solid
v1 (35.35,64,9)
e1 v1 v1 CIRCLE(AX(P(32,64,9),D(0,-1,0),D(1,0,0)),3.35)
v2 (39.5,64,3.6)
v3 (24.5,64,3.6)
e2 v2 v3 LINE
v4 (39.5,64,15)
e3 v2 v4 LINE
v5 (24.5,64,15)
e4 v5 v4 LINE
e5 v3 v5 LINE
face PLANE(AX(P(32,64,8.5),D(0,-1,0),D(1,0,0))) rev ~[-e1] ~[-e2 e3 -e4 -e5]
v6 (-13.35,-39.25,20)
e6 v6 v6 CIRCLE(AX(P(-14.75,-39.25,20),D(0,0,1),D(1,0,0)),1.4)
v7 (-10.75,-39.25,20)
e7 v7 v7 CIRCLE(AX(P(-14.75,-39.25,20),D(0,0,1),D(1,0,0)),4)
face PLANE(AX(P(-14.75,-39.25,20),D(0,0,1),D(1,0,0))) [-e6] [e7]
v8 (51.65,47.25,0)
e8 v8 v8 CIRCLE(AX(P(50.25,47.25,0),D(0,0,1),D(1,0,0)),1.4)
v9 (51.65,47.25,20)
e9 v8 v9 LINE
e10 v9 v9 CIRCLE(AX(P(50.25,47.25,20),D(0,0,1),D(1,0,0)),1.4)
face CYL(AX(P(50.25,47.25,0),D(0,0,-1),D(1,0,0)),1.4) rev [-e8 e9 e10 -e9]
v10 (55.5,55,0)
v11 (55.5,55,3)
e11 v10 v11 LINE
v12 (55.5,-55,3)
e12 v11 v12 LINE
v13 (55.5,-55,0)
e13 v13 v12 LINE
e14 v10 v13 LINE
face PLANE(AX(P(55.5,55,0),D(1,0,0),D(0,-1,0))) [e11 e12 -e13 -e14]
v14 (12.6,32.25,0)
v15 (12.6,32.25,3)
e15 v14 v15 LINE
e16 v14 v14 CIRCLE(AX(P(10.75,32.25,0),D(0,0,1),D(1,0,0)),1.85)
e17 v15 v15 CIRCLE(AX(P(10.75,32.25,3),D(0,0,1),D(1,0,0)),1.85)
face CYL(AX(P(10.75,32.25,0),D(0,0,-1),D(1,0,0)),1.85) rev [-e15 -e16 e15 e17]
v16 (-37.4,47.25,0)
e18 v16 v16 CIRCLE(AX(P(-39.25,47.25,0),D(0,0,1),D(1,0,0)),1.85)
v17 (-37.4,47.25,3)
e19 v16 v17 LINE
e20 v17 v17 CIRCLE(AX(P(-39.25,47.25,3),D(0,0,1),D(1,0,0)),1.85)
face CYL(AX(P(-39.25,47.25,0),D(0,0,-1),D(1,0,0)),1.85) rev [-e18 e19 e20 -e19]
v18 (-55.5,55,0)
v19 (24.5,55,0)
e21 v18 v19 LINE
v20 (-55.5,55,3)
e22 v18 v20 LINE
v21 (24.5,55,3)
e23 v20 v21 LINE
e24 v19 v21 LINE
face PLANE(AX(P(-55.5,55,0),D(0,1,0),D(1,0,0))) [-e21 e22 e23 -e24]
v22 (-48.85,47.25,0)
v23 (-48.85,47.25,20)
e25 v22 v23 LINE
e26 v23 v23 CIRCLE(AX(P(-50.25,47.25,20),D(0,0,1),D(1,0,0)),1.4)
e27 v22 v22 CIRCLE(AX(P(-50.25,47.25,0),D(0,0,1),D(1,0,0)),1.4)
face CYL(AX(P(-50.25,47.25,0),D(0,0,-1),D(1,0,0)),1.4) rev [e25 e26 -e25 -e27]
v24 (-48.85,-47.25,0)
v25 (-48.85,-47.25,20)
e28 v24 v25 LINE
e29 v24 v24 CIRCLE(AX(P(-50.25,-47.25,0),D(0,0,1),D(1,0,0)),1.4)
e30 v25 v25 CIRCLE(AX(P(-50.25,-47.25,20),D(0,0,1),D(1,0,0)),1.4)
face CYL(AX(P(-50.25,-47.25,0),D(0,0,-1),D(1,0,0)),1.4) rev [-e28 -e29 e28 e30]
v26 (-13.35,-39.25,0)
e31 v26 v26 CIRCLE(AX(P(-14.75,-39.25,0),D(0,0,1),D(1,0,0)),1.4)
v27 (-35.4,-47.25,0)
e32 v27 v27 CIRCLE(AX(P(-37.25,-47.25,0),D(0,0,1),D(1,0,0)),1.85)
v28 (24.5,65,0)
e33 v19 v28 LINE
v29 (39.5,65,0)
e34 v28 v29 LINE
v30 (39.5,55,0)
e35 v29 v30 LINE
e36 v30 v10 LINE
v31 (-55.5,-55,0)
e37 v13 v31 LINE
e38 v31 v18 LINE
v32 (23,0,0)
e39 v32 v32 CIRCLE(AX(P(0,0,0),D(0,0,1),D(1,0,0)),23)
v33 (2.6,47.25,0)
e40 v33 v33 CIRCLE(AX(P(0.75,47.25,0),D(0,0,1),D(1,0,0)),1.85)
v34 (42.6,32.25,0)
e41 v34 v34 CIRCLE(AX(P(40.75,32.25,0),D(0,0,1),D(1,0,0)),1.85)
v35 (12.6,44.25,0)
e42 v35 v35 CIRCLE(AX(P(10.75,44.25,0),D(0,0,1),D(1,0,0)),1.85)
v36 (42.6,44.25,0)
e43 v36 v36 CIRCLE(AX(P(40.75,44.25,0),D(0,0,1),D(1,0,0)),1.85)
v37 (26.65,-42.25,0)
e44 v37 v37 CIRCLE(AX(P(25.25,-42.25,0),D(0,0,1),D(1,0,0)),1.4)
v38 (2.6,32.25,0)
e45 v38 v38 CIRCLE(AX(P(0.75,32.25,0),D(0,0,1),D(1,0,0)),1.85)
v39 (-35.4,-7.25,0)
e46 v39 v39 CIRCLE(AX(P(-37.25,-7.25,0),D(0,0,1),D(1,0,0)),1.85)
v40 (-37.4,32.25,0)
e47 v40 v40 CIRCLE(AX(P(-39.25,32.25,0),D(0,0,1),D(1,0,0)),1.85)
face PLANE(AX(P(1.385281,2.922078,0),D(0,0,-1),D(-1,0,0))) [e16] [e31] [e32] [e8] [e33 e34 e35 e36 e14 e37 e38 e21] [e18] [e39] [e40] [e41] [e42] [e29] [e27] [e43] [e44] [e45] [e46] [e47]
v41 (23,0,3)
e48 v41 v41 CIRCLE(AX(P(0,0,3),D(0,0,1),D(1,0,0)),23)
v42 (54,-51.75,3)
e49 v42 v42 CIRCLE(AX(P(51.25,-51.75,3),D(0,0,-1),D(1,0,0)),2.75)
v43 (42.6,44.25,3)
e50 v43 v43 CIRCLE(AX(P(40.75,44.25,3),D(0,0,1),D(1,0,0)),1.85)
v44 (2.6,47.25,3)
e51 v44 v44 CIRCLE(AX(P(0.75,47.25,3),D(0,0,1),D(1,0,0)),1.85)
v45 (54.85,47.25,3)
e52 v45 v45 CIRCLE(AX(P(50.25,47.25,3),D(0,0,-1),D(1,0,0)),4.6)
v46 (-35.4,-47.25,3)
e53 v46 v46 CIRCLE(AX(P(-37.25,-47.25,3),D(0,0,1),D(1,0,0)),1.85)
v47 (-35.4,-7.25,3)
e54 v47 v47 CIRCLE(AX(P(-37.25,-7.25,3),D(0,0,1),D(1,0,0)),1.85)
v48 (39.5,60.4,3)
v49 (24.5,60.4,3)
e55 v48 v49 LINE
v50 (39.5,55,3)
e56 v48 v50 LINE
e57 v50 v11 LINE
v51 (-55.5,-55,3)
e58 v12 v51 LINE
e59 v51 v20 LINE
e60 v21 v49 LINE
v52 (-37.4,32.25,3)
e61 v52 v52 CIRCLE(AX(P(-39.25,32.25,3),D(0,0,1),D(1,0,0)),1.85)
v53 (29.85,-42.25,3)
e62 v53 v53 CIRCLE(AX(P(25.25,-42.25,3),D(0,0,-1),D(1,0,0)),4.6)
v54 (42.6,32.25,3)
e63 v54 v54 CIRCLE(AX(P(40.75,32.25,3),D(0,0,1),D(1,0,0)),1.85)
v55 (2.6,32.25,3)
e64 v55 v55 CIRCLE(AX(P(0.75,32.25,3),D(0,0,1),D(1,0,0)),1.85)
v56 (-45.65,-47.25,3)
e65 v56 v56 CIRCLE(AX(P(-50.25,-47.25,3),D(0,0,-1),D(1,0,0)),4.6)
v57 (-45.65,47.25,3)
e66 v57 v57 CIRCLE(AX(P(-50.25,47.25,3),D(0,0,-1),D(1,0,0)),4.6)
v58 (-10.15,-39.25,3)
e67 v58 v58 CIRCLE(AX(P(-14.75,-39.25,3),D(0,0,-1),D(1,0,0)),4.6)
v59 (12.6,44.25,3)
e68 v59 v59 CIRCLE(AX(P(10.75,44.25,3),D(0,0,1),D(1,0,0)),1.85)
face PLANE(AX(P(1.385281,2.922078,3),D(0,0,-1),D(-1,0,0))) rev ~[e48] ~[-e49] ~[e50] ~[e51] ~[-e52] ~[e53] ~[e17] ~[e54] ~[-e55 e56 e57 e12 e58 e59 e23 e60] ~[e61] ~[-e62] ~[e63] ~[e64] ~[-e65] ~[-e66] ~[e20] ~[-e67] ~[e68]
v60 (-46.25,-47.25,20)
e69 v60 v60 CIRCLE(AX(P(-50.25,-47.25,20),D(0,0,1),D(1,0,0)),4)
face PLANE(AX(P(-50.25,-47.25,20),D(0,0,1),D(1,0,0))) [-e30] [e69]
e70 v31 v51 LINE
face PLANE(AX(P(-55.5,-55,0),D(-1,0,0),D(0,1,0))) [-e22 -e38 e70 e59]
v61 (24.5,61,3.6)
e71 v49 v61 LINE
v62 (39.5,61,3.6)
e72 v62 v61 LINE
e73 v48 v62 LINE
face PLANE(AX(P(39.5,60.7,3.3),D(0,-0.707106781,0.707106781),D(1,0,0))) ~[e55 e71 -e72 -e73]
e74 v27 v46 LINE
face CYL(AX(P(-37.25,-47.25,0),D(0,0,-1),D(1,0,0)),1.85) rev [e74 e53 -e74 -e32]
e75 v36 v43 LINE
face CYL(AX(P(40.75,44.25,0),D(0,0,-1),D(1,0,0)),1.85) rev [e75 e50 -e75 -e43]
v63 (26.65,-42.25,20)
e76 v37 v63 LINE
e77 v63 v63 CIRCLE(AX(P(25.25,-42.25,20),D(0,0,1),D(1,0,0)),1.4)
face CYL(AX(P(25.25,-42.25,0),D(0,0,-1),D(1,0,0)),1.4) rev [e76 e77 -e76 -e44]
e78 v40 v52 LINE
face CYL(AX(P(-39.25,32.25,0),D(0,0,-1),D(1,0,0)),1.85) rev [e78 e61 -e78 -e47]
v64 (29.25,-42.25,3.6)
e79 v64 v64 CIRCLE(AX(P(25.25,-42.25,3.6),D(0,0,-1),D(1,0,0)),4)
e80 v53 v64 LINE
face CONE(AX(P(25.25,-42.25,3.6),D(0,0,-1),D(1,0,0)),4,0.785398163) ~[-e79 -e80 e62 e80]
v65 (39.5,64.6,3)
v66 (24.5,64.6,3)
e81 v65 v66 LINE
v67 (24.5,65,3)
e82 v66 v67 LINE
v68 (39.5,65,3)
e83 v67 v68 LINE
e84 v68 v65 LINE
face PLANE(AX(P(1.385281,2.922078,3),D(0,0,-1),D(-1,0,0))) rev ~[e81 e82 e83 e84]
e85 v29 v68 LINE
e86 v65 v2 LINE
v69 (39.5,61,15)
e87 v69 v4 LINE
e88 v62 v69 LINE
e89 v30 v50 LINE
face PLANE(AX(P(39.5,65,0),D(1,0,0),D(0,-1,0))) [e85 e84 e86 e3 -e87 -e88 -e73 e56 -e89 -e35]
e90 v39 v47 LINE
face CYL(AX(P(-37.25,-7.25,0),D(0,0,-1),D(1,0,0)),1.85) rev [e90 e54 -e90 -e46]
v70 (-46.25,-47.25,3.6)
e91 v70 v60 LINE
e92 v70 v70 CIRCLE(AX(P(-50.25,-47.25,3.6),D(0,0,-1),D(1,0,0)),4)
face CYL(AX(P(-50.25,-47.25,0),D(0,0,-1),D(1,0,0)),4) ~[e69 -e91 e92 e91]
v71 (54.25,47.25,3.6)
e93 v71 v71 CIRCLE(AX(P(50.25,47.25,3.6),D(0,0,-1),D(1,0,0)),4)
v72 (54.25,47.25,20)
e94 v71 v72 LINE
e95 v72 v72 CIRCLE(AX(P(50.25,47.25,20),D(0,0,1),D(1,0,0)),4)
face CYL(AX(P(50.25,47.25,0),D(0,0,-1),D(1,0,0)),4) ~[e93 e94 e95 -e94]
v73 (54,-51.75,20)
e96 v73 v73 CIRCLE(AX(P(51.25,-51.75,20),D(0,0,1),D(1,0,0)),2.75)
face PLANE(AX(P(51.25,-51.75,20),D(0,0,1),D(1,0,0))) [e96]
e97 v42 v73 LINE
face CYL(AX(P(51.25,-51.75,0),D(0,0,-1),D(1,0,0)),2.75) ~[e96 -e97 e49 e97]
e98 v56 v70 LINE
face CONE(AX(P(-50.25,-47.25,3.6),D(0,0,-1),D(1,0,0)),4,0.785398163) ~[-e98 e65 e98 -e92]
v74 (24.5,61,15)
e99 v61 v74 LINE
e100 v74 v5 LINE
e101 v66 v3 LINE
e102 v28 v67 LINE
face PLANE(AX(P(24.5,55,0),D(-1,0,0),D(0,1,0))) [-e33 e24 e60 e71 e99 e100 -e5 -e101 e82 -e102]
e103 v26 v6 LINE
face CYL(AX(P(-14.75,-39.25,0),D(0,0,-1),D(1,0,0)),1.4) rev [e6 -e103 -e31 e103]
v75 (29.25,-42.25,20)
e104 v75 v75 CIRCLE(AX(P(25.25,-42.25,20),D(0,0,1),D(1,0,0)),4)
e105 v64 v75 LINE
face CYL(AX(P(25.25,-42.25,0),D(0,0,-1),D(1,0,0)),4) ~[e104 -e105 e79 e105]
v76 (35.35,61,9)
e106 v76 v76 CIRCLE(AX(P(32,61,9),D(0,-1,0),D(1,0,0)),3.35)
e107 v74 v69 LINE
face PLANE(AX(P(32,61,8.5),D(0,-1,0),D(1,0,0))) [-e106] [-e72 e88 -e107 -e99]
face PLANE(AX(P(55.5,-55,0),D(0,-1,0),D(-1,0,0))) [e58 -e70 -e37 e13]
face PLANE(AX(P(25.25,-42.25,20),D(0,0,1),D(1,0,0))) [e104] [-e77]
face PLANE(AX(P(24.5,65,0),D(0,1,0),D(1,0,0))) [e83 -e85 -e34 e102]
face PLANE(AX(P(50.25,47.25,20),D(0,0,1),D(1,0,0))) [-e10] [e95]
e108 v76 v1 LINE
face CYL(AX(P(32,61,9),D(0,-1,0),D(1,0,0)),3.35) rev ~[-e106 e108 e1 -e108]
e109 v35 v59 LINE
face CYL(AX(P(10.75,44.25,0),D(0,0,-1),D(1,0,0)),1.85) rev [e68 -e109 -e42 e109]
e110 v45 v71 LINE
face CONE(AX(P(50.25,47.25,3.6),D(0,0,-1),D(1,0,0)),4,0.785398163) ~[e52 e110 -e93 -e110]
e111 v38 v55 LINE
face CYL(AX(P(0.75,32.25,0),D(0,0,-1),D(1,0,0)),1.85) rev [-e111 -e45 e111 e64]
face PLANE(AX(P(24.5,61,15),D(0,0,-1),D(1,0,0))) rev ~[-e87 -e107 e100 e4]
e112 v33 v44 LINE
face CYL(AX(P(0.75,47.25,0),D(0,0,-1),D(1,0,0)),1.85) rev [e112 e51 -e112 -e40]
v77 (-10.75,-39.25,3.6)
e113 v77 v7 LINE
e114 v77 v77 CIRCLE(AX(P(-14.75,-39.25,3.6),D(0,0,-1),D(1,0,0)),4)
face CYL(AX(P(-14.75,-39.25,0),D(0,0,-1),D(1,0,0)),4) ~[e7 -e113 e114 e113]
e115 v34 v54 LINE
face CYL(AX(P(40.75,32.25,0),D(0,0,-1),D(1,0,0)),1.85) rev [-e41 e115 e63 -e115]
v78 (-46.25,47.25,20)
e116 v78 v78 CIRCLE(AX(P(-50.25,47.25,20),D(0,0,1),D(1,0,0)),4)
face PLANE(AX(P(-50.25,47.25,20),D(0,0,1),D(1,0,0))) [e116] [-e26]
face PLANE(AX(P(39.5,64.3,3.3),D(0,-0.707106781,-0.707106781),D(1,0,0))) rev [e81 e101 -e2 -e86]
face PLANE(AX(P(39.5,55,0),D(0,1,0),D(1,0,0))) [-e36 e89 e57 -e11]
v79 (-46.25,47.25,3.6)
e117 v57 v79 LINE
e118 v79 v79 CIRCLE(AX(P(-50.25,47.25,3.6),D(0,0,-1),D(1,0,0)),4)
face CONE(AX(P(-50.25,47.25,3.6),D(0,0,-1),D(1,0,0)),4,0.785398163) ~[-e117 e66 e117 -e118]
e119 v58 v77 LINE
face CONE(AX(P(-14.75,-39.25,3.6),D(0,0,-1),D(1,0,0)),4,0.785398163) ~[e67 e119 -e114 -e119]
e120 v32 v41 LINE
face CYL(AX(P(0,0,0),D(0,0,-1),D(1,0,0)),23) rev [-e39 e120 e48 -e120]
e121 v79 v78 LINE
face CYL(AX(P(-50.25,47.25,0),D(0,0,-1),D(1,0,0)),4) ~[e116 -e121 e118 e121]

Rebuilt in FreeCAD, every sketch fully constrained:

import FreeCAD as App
import Part
import Sketcher

V = App.Vector
Q = App.Units.Quantity


def edges_at(feature, points):
    """Names of the edges that pass closest to the given points."""
    edges = feature.Shape.Edges
    near = lambda p: min(range(len(edges)), key=lambda i: edges[i].distToShape(Part.Vertex(*p))[0])
    return sorted({f"Edge{near(p) + 1}" for p in points})

doc = App.newDocument("Part")
body = doc.addObject("PartDesign::Body", "Body")
body.AllowCompound = True

# Sketch on XY plane
sketch1 = body.newObject("Sketcher::SketchObject", "Sketch")
sketch1.AttachmentSupport = (doc.getObject("XY_Plane"), [""])
sketch1.MapMode = "FlatFace"
sketch1.addGeometry([
    Part.Circle(V(-50.25, -47.25, 0), V(0, 0, 1), 4),  # 0
    Part.Circle(V(-50.25, -47.25, 0), V(0, 0, 1), 1.4),  # 1
    Part.Circle(V(50.25, 47.25, 0), V(0, 0, 1), 4),  # 2
    Part.Circle(V(50.25, 47.25, 0), V(0, 0, 1), 1.4),  # 3
    Part.Circle(V(-50.25, 47.25, 0), V(0, 0, 1), 4),  # 4
    Part.Circle(V(-50.25, 47.25, 0), V(0, 0, 1), 1.4),  # 5
    Part.Circle(V(25.25, -42.25, 0), V(0, 0, 1), 4),  # 6
    Part.Circle(V(25.25, -42.25, 0), V(0, 0, 1), 1.4),  # 7
    Part.Circle(V(51.25, -51.75, 0), V(0, 0, 1), 2.75),  # 8
    Part.Circle(V(-14.75, -39.25, 0), V(0, 0, 1), 4),  # 9
    Part.Circle(V(-14.75, -39.25, 0), V(0, 0, 1), 1.4),  # 10
], False)
sketch1.addConstraint([
    Sketcher.Constraint("Coincident", 1, 3, 0, 3),
    Sketcher.Constraint("Coincident", 3, 3, 2, 3),
    Sketcher.Constraint("Coincident", 5, 3, 4, 3),
    Sketcher.Constraint("Coincident", 7, 3, 6, 3),
    Sketcher.Constraint("Coincident", 10, 3, 9, 3),
    Sketcher.Constraint("Equal", 0, 2),
    Sketcher.Constraint("Equal", 1, 3),
    Sketcher.Constraint("Equal", 2, 4),
    Sketcher.Constraint("Equal", 3, 5),
    Sketcher.Constraint("Equal", 4, 6),
    Sketcher.Constraint("Equal", 5, 7),
    Sketcher.Constraint("Equal", 6, 9),
    Sketcher.Constraint("Equal", 7, 10),
    Sketcher.Constraint("Symmetric", 0, 3, 2, 3, -1, 1),
    Sketcher.Constraint("Symmetric", 2, 3, 4, 3, -2),
    Sketcher.Constraint("Diameter", 0, Q("8 mm")),
    Sketcher.Constraint("Diameter", 1, Q("2.8 mm")),
    Sketcher.Constraint("Diameter", 8, Q("5.5 mm")),
    Sketcher.Constraint("DistanceY", 0, 3, 6, 3, Q("5 mm")),
    Sketcher.Constraint("DistanceX", 6, 3, 2, 3, Q("25 mm")),
    Sketcher.Constraint("DistanceX", 6, 3, 8, 3, Q("26 mm")),
    Sketcher.Constraint("DistanceY", 8, 3, 2, 3, Q("99 mm")),
    Sketcher.Constraint("DistanceY", 0, 3, 9, 3, Q("8 mm")),
    Sketcher.Constraint("DistanceX", 9, 3, 6, 3, Q("40 mm")),
    Sketcher.Constraint("DistanceX", 0, 3, 2, 3, Q("100.5 mm")),
    Sketcher.Constraint("DistanceY", 0, 3, 2, 3, Q("94.5 mm")),
])
pad1 = body.newObject("PartDesign::Pad", "Pad")
pad1.Profile = sketch1
pad1.Length = 20
body2 = doc.addObject("PartDesign::Body", "Body001")

# Sketch on XY plane
sketch2 = body2.newObject("Sketcher::SketchObject", "Sketch001")
sketch2.AttachmentSupport = (doc.getObject("XY_Plane001"), [""])
sketch2.MapMode = "FlatFace"
sketch2.addGeometry([
    Part.LineSegment(V(-7.5, 13, 0), V(-7.5, 0, 0)),  # 0
    Part.LineSegment(V(-7.5, 0, 0), V(7.5, 0, 0)),  # 1
    Part.LineSegment(V(7.5, 0, 0), V(7.5, 13, 0)),  # 2
    Part.LineSegment(V(7.5, 13, 0), V(-7.5, 13, 0)),  # 3
    Part.Circle(V(0, 7, 0), V(0, 0, 1), 3.35),  # 4
], False)
sketch2.addConstraint([
    Sketcher.Constraint("Coincident", 0, 2, 1, 1),
    Sketcher.Constraint("Coincident", 1, 2, 2, 1),
    Sketcher.Constraint("Coincident", 2, 2, 3, 1),
    Sketcher.Constraint("Coincident", 3, 2, 0, 1),
    Sketcher.Constraint("Vertical", 0),
    Sketcher.Constraint("Horizontal", 1),
    Sketcher.Constraint("Vertical", 2),
    Sketcher.Constraint("Horizontal", 3),
    Sketcher.Constraint("Symmetric", 0, 2, 1, 2, -1, 1),
    Sketcher.Constraint("PointOnObject", 4, 3, -2),
    Sketcher.Constraint("Diameter", 4, Q("6.7 mm")),
    Sketcher.Constraint("DistanceX", 1, 1, 1, 2, Q("15 mm")),
    Sketcher.Constraint("DistanceY", 0, 2, 0, 1, Q("13 mm")),
    Sketcher.Constraint("DistanceY", -1, 1, 4, 3, Q("7 mm")),
])
pad2 = body2.newObject("PartDesign::Pad", "Pad001")
pad2.Profile = sketch2
pad2.Length = 3
pad2.Reversed = True
body3 = doc.addObject("PartDesign::Body", "Body002")
doc.recompute()

body2.Placement = App.Placement(V(0, 0, 0), App.Rotation(V(1, 0, 0), 90))
boolean = body3.newObject("PartDesign::Boolean", "Boolean")
boolean.Type = "Fuse"
boolean.addObjects([body2])
body4 = doc.addObject("PartDesign::Body", "Body003")
doc.recompute()

body3.Placement = App.Placement(V(32, 61, 2), App.Rotation(V(0, 0, 1), 0))
boolean2 = body4.newObject("PartDesign::Boolean", "Boolean001")
boolean2.Type = "Fuse"
boolean2.addObjects([body3])
body5 = doc.addObject("PartDesign::Body", "Body004")

# Sketch on XY plane
sketch3 = body5.newObject("Sketcher::SketchObject", "Sketch002")
sketch3.AttachmentSupport = (doc.getObject("XY_Plane004"), [""])
sketch3.MapMode = "FlatFace"
sketch3.addGeometry([
    Part.LineSegment(V(55.5, -55, 0), V(55.5, 55, 0)),  # 0
    Part.LineSegment(V(55.5, 55, 0), V(39.5, 55, 0)),  # 1
    Part.LineSegment(V(39.5, 55, 0), V(39.5, 65, 0)),  # 2
    Part.LineSegment(V(39.5, 65, 0), V(24.5, 65, 0)),  # 3
    Part.LineSegment(V(24.5, 65, 0), V(24.5, 55, 0)),  # 4
    Part.LineSegment(V(24.5, 55, 0), V(-55.5, 55, 0)),  # 5
    Part.LineSegment(V(-55.5, 55, 0), V(-55.5, -55, 0)),  # 6
    Part.LineSegment(V(-55.5, -55, 0), V(55.5, -55, 0)),  # 7
    Part.Circle(V(25.25, -42.25, 0), V(0, 0, 1), 1.9),  # 8
    Part.Circle(V(-14.75, -39.25, 0), V(0, 0, 1), 1.9),  # 9
    Part.Circle(V(-37.25, -47.25, 0), V(0, 0, 1), 1.85),  # 10
    Part.Circle(V(-50.25, -47.25, 0), V(0, 0, 1), 1.9),  # 11
    Part.Circle(V(-37.25, -7.25, 0), V(0, 0, 1), 1.85),  # 12
    Part.Circle(V(0, 0, 0), V(0, 0, 1), 23),  # 13
    Part.Circle(V(40.75, 32.25, 0), V(0, 0, 1), 1.85),  # 14
    Part.Circle(V(50.25, 47.25, 0), V(0, 0, 1), 1.9),  # 15
    Part.Circle(V(40.75, 44.25, 0), V(0, 0, 1), 1.85),  # 16
    Part.Circle(V(10.75, 32.25, 0), V(0, 0, 1), 1.85),  # 17
    Part.Circle(V(0.75, 32.25, 0), V(0, 0, 1), 1.85),  # 18
    Part.Circle(V(10.75, 44.25, 0), V(0, 0, 1), 1.85),  # 19
    Part.Circle(V(0.75, 47.25, 0), V(0, 0, 1), 1.85),  # 20
    Part.Circle(V(-39.25, 32.25, 0), V(0, 0, 1), 1.85),  # 21
    Part.Circle(V(-39.25, 47.25, 0), V(0, 0, 1), 1.85),  # 22
    Part.Circle(V(-50.25, 47.25, 0), V(0, 0, 1), 1.9),  # 23
], False)
sketch3.addConstraint([
    Sketcher.Constraint("Coincident", 0, 2, 1, 1),
    Sketcher.Constraint("Coincident", 1, 2, 2, 1),
    Sketcher.Constraint("Coincident", 2, 2, 3, 1),
    Sketcher.Constraint("Coincident", 3, 2, 4, 1),
    Sketcher.Constraint("Coincident", 4, 2, 5, 1),
    Sketcher.Constraint("Coincident", 5, 2, 6, 1),
    Sketcher.Constraint("Coincident", 6, 2, 7, 1),
    Sketcher.Constraint("Coincident", 7, 2, 0, 1),
    Sketcher.Constraint("Vertical", 0),
    Sketcher.Constraint("Horizontal", 1),
    Sketcher.Constraint("Vertical", 2),
    Sketcher.Constraint("Horizontal", 3),
    Sketcher.Constraint("Vertical", 4),
    Sketcher.Constraint("Horizontal", 5),
    Sketcher.Constraint("Vertical", 6),
    Sketcher.Constraint("Horizontal", 7),
    Sketcher.Constraint("Coincident", 13, 3, -1, 1),
    Sketcher.Constraint("Equal", 8, 9),
    Sketcher.Constraint("Equal", 9, 11),
    Sketcher.Constraint("Equal", 10, 12),
    Sketcher.Constraint("Equal", 12, 14),
    Sketcher.Constraint("Equal", 11, 15),
    Sketcher.Constraint("Equal", 14, 16),
    Sketcher.Constraint("Equal", 16, 17),
    Sketcher.Constraint("Equal", 17, 18),
    Sketcher.Constraint("Equal", 18, 19),
    Sketcher.Constraint("Equal", 19, 20),
    Sketcher.Constraint("Equal", 20, 21),
    Sketcher.Constraint("Equal", 21, 22),
    Sketcher.Constraint("Equal", 15, 23),
    Sketcher.Constraint("Symmetric", 11, 3, 15, 3, -1, 1),
    Sketcher.Constraint("Symmetric", 0, 2, 6, 2, -1, 1),
    Sketcher.Constraint("Symmetric", 15, 3, 23, 3, -2),
    Sketcher.Constraint("Horizontal", 10, 3, 11, 3),
    Sketcher.Constraint("Horizontal", 14, 3, 17, 3),
    Sketcher.Constraint("Horizontal", 17, 3, 18, 3),
    Sketcher.Constraint("Horizontal", 16, 3, 19, 3),
    Sketcher.Constraint("Horizontal", 15, 3, 20, 3),
    Sketcher.Constraint("Horizontal", 18, 3, 21, 3),
    Sketcher.Constraint("Horizontal", 20, 3, 22, 3),
    Sketcher.Constraint("Horizontal", 1, 2, 4, 2),
    Sketcher.Constraint("Vertical", 10, 3, 12, 3),
    Sketcher.Constraint("Vertical", 14, 3, 16, 3),
    Sketcher.Constraint("Vertical", 17, 3, 19, 3),
    Sketcher.Constraint("Vertical", 18, 3, 20, 3),
    Sketcher.Constraint("Vertical", 21, 3, 22, 3),
    Sketcher.Constraint("Diameter", 13, Q("46 mm")),
    Sketcher.Constraint("Diameter", 8, Q("3.8 mm")),
    Sketcher.Constraint("Diameter", 10, Q("3.7 mm")),
    Sketcher.Constraint("DistanceX", 1, 2, 1, 1, Q("16 mm")),
    Sketcher.Constraint("DistanceX", 3, 2, 3, 1, Q("15 mm")),
    Sketcher.Constraint("DistanceX", 5, 2, 5, 1, Q("80 mm")),
    Sketcher.Constraint("DistanceY", 0, 1, 0, 2, Q("110 mm")),
    Sketcher.Constraint("DistanceY", 2, 1, 2, 2, Q("10 mm")),
    Sketcher.Constraint("DistanceX", 9, 3, 8, 3, Q("40 mm")),
    Sketcher.Constraint("DistanceY", 8, 3, 9, 3, Q("3 mm")),
    Sketcher.Constraint("DistanceY", 10, 3, 9, 3, Q("8 mm")),
    Sketcher.Constraint("DistanceX", 11, 3, 10, 3, Q("13 mm")),
    Sketcher.Constraint("DistanceY", 9, 3, 12, 3, Q("32 mm")),
    Sketcher.Constraint("DistanceX", 12, 3, 14, 3, Q("78 mm")),
    Sketcher.Constraint("DistanceY", 14, 3, 15, 3, Q("15 mm")),
    Sketcher.Constraint("DistanceX", 8, 3, 15, 3, Q("25 mm")),
    Sketcher.Constraint("DistanceY", 16, 3, 15, 3, Q("3 mm")),
    Sketcher.Constraint("DistanceX", 17, 3, 14, 3, Q("30 mm")),
    Sketcher.Constraint("DistanceX", 18, 3, 17, 3, Q("10 mm")),
    Sketcher.Constraint("DistanceX", 21, 3, 12, 3, Q("2 mm")),
    Sketcher.Constraint("DistanceX", 10, 3, 9, 3, Q("22.5 mm")),
    Sketcher.Constraint("DistanceY", 8, 3, 14, 3, Q("74.5 mm")),
])
pad3 = body5.newObject("PartDesign::Pad", "Pad002")
pad3.Profile = sketch3
pad3.Length = 3
doc.recompute()

boolean3 = body5.newObject("PartDesign::Boolean", "Boolean002")
boolean3.Type = "Fuse"
boolean3.addObjects([body])
doc.recompute()

boolean4 = body5.newObject("PartDesign::Boolean", "Boolean003")
boolean4.Type = "Fuse"
boolean4.addObjects([body4])
doc.recompute()

chamfer = body5.newObject("PartDesign::Chamfer", "Chamfer")
chamfer.Base = (boolean4, edges_at(boolean4, [
    (32, 61, 3),
    (32, 64, 3),
    (-54.25, -47.25, 3),
    (-18.75, -39.25, 3),
    (21.25, -42.25, 3),
    (-54.25, 47.25, 3),
    (46.25, 47.25, 3),
]))
chamfer.Size = 0.6

doc.recompute()
